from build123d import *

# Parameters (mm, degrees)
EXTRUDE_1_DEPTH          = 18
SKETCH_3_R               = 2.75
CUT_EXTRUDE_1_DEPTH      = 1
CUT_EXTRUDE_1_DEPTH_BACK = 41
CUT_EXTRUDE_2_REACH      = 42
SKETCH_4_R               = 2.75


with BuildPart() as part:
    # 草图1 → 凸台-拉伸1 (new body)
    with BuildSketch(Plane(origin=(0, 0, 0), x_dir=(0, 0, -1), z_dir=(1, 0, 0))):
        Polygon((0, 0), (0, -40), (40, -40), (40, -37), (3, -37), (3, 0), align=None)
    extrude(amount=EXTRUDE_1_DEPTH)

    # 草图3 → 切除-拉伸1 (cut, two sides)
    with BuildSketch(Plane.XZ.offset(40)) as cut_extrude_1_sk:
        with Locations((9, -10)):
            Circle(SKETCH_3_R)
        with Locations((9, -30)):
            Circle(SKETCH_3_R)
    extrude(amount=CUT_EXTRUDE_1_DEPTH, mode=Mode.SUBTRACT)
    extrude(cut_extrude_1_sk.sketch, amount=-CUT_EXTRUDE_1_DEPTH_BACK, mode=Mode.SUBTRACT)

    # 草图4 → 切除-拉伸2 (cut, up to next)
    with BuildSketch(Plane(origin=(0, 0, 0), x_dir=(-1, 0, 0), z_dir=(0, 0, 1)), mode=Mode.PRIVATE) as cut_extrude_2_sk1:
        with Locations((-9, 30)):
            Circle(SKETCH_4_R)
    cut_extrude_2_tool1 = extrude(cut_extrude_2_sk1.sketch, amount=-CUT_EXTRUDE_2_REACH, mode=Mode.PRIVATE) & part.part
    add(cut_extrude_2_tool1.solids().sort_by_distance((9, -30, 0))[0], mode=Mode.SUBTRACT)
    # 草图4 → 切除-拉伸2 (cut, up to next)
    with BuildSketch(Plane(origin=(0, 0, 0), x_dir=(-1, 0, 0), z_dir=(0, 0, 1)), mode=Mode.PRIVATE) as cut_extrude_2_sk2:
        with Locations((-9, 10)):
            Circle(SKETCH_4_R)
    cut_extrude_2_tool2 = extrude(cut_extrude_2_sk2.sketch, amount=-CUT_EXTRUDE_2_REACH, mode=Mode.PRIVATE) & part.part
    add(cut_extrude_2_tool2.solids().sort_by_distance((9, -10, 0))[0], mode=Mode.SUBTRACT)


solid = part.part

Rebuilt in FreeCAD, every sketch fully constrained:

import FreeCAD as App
import Part
import Sketcher
from FreeCAD import Vector

doc = App.newDocument("Part")
body = doc.addObject("PartDesign::Body", "Body")

sketch1 = body.newObject("Sketcher::SketchObject", "Sketch")
sketch1.AttachmentSupport = (doc.getObject("YZ_Plane"), [""])
sketch1.MapMode = "FlatFace"
sketch1.addGeometry(Part.LineSegment(Vector(0, 0, 0), Vector(-40, 0, 0)), False)
sketch1.addGeometry(Part.LineSegment(Vector(-40, 0, 0), Vector(-40, -40, 0)), False)
sketch1.addGeometry(Part.LineSegment(Vector(-40, -40, 0), Vector(-37, -40, 0)), False)
sketch1.addGeometry(Part.LineSegment(Vector(-37, -40, 0), Vector(-37, -3, 0)), False)
sketch1.addGeometry(Part.LineSegment(Vector(-37, -3, 0), Vector(0, -3, 0)), False)
sketch1.addGeometry(Part.LineSegment(Vector(0, -3, 0), Vector(0, 0, 0)), False)
sketch1.addConstraint(Sketcher.Constraint("Coincident", 0, 2, 1, 1))
sketch1.addConstraint(Sketcher.Constraint("Coincident", 1, 2, 2, 1))
sketch1.addConstraint(Sketcher.Constraint("Coincident", 2, 2, 3, 1))
sketch1.addConstraint(Sketcher.Constraint("Coincident", 3, 2, 4, 1))
sketch1.addConstraint(Sketcher.Constraint("Coincident", 4, 2, 5, 1))
sketch1.addConstraint(Sketcher.Constraint("Coincident", 5, 2, 0, 1))
sketch1.addConstraint(Sketcher.Constraint("Horizontal", 0))
sketch1.addConstraint(Sketcher.Constraint("Vertical", 1))
sketch1.addConstraint(Sketcher.Constraint("Horizontal", 2))
sketch1.addConstraint(Sketcher.Constraint("Vertical", 3))
sketch1.addConstraint(Sketcher.Constraint("Horizontal", 4))
sketch1.addConstraint(Sketcher.Constraint("Vertical", 5))
sketch1.addConstraint(Sketcher.Constraint("Coincident", 5, 2, -1, 1))
sketch1.addConstraint(Sketcher.Constraint("Equal", 0, 1))
sketch1.addConstraint(Sketcher.Constraint("Equal", 4, 3))
sketch1.addConstraint(Sketcher.Constraint("DistanceX", 0, 2, 0, 1, 40.0))
sketch1.addConstraint(Sketcher.Constraint("DistanceX", 2, 1, 2, 2, 3.0))
pad1 = body.newObject("PartDesign::Pad", "Pad")
pad1.Profile = sketch1
pad1.Length = 18

sketch2 = body.newObject("Sketcher::SketchObject", "Sketch001")
sketch2.AttachmentSupport = (doc.getObject("XZ_Plane"), [""])
sketch2.MapMode = "FlatFace"
sketch2.AttachmentOffset = App.Placement(Vector(0, 0, 40), App.Rotation())
sketch2.addGeometry(Part.Circle(Vector(9, -10, 0), Vector(0, 0, 1), 2.75), False)
sketch2.addGeometry(Part.Circle(Vector(9, -30, 0), Vector(0, 0, 1), 2.75), False)
sketch2.addConstraint(Sketcher.Constraint("Equal", 0, 1))
sketch2.addConstraint(Sketcher.Constraint("Vertical", 0, 3, 1, 3))
sketch2.addConstraint(Sketcher.Constraint("Diameter", 0, 5.5))
sketch2.addConstraint(Sketcher.Constraint("DistanceX", -1, 1, 0, 3, 9.0))
sketch2.addConstraint(Sketcher.Constraint("DistanceY", 0, 3, -1, 1, 10.0))
sketch2.addConstraint(Sketcher.Constraint("DistanceY", 1, 3, -1, 1, 30.0))
pocket1 = body.newObject("PartDesign::Pocket", "Pocket")
pocket1.Profile = sketch2
pocket1.Type = "ThroughAll"
pocket1.Midplane = True

sketch3 = body.newObject("Sketcher::SketchObject", "Sketch002")
sketch3.AttachmentSupport = (doc.getObject("XY_Plane"), [""])
sketch3.MapMode = "FlatFace"
sketch3.addGeometry(Part.Circle(Vector(9, -30, 0), Vector(0, 0, 1), 2.75), False)
sketch3.addConstraint(Sketcher.Constraint("Diameter", 0, 5.5))
sketch3.addConstraint(Sketcher.Constraint("DistanceX", -1, 1, 0, 3, 9.0))
sketch3.addConstraint(Sketcher.Constraint("DistanceY", 0, 3, -1, 1, 30.0))
pocket2 = body.newObject("PartDesign::Pocket", "Pocket001")
pocket2.Profile = sketch3
pocket2.Type = "UpToFirst"

sketch4 = body.newObject("Sketcher::SketchObject", "Sketch003")
sketch4.AttachmentSupport = (doc.getObject("XY_Plane"), [""])
sketch4.MapMode = "FlatFace"
sketch4.addGeometry(Part.Circle(Vector(9, -10, 0), Vector(0, 0, 1), 2.75), False)
sketch4.addConstraint(Sketcher.Constraint("Diameter", 0, 5.5))
sketch4.addConstraint(Sketcher.Constraint("DistanceX", -1, 1, 0, 3, 9.0))
sketch4.addConstraint(Sketcher.Constraint("DistanceY", 0, 3, -1, 1, 10.0))
pocket3 = body.newObject("PartDesign::Pocket", "Pocket002")
pocket3.Profile = sketch4
pocket3.Type = "UpToFirst"

doc.recompute()
